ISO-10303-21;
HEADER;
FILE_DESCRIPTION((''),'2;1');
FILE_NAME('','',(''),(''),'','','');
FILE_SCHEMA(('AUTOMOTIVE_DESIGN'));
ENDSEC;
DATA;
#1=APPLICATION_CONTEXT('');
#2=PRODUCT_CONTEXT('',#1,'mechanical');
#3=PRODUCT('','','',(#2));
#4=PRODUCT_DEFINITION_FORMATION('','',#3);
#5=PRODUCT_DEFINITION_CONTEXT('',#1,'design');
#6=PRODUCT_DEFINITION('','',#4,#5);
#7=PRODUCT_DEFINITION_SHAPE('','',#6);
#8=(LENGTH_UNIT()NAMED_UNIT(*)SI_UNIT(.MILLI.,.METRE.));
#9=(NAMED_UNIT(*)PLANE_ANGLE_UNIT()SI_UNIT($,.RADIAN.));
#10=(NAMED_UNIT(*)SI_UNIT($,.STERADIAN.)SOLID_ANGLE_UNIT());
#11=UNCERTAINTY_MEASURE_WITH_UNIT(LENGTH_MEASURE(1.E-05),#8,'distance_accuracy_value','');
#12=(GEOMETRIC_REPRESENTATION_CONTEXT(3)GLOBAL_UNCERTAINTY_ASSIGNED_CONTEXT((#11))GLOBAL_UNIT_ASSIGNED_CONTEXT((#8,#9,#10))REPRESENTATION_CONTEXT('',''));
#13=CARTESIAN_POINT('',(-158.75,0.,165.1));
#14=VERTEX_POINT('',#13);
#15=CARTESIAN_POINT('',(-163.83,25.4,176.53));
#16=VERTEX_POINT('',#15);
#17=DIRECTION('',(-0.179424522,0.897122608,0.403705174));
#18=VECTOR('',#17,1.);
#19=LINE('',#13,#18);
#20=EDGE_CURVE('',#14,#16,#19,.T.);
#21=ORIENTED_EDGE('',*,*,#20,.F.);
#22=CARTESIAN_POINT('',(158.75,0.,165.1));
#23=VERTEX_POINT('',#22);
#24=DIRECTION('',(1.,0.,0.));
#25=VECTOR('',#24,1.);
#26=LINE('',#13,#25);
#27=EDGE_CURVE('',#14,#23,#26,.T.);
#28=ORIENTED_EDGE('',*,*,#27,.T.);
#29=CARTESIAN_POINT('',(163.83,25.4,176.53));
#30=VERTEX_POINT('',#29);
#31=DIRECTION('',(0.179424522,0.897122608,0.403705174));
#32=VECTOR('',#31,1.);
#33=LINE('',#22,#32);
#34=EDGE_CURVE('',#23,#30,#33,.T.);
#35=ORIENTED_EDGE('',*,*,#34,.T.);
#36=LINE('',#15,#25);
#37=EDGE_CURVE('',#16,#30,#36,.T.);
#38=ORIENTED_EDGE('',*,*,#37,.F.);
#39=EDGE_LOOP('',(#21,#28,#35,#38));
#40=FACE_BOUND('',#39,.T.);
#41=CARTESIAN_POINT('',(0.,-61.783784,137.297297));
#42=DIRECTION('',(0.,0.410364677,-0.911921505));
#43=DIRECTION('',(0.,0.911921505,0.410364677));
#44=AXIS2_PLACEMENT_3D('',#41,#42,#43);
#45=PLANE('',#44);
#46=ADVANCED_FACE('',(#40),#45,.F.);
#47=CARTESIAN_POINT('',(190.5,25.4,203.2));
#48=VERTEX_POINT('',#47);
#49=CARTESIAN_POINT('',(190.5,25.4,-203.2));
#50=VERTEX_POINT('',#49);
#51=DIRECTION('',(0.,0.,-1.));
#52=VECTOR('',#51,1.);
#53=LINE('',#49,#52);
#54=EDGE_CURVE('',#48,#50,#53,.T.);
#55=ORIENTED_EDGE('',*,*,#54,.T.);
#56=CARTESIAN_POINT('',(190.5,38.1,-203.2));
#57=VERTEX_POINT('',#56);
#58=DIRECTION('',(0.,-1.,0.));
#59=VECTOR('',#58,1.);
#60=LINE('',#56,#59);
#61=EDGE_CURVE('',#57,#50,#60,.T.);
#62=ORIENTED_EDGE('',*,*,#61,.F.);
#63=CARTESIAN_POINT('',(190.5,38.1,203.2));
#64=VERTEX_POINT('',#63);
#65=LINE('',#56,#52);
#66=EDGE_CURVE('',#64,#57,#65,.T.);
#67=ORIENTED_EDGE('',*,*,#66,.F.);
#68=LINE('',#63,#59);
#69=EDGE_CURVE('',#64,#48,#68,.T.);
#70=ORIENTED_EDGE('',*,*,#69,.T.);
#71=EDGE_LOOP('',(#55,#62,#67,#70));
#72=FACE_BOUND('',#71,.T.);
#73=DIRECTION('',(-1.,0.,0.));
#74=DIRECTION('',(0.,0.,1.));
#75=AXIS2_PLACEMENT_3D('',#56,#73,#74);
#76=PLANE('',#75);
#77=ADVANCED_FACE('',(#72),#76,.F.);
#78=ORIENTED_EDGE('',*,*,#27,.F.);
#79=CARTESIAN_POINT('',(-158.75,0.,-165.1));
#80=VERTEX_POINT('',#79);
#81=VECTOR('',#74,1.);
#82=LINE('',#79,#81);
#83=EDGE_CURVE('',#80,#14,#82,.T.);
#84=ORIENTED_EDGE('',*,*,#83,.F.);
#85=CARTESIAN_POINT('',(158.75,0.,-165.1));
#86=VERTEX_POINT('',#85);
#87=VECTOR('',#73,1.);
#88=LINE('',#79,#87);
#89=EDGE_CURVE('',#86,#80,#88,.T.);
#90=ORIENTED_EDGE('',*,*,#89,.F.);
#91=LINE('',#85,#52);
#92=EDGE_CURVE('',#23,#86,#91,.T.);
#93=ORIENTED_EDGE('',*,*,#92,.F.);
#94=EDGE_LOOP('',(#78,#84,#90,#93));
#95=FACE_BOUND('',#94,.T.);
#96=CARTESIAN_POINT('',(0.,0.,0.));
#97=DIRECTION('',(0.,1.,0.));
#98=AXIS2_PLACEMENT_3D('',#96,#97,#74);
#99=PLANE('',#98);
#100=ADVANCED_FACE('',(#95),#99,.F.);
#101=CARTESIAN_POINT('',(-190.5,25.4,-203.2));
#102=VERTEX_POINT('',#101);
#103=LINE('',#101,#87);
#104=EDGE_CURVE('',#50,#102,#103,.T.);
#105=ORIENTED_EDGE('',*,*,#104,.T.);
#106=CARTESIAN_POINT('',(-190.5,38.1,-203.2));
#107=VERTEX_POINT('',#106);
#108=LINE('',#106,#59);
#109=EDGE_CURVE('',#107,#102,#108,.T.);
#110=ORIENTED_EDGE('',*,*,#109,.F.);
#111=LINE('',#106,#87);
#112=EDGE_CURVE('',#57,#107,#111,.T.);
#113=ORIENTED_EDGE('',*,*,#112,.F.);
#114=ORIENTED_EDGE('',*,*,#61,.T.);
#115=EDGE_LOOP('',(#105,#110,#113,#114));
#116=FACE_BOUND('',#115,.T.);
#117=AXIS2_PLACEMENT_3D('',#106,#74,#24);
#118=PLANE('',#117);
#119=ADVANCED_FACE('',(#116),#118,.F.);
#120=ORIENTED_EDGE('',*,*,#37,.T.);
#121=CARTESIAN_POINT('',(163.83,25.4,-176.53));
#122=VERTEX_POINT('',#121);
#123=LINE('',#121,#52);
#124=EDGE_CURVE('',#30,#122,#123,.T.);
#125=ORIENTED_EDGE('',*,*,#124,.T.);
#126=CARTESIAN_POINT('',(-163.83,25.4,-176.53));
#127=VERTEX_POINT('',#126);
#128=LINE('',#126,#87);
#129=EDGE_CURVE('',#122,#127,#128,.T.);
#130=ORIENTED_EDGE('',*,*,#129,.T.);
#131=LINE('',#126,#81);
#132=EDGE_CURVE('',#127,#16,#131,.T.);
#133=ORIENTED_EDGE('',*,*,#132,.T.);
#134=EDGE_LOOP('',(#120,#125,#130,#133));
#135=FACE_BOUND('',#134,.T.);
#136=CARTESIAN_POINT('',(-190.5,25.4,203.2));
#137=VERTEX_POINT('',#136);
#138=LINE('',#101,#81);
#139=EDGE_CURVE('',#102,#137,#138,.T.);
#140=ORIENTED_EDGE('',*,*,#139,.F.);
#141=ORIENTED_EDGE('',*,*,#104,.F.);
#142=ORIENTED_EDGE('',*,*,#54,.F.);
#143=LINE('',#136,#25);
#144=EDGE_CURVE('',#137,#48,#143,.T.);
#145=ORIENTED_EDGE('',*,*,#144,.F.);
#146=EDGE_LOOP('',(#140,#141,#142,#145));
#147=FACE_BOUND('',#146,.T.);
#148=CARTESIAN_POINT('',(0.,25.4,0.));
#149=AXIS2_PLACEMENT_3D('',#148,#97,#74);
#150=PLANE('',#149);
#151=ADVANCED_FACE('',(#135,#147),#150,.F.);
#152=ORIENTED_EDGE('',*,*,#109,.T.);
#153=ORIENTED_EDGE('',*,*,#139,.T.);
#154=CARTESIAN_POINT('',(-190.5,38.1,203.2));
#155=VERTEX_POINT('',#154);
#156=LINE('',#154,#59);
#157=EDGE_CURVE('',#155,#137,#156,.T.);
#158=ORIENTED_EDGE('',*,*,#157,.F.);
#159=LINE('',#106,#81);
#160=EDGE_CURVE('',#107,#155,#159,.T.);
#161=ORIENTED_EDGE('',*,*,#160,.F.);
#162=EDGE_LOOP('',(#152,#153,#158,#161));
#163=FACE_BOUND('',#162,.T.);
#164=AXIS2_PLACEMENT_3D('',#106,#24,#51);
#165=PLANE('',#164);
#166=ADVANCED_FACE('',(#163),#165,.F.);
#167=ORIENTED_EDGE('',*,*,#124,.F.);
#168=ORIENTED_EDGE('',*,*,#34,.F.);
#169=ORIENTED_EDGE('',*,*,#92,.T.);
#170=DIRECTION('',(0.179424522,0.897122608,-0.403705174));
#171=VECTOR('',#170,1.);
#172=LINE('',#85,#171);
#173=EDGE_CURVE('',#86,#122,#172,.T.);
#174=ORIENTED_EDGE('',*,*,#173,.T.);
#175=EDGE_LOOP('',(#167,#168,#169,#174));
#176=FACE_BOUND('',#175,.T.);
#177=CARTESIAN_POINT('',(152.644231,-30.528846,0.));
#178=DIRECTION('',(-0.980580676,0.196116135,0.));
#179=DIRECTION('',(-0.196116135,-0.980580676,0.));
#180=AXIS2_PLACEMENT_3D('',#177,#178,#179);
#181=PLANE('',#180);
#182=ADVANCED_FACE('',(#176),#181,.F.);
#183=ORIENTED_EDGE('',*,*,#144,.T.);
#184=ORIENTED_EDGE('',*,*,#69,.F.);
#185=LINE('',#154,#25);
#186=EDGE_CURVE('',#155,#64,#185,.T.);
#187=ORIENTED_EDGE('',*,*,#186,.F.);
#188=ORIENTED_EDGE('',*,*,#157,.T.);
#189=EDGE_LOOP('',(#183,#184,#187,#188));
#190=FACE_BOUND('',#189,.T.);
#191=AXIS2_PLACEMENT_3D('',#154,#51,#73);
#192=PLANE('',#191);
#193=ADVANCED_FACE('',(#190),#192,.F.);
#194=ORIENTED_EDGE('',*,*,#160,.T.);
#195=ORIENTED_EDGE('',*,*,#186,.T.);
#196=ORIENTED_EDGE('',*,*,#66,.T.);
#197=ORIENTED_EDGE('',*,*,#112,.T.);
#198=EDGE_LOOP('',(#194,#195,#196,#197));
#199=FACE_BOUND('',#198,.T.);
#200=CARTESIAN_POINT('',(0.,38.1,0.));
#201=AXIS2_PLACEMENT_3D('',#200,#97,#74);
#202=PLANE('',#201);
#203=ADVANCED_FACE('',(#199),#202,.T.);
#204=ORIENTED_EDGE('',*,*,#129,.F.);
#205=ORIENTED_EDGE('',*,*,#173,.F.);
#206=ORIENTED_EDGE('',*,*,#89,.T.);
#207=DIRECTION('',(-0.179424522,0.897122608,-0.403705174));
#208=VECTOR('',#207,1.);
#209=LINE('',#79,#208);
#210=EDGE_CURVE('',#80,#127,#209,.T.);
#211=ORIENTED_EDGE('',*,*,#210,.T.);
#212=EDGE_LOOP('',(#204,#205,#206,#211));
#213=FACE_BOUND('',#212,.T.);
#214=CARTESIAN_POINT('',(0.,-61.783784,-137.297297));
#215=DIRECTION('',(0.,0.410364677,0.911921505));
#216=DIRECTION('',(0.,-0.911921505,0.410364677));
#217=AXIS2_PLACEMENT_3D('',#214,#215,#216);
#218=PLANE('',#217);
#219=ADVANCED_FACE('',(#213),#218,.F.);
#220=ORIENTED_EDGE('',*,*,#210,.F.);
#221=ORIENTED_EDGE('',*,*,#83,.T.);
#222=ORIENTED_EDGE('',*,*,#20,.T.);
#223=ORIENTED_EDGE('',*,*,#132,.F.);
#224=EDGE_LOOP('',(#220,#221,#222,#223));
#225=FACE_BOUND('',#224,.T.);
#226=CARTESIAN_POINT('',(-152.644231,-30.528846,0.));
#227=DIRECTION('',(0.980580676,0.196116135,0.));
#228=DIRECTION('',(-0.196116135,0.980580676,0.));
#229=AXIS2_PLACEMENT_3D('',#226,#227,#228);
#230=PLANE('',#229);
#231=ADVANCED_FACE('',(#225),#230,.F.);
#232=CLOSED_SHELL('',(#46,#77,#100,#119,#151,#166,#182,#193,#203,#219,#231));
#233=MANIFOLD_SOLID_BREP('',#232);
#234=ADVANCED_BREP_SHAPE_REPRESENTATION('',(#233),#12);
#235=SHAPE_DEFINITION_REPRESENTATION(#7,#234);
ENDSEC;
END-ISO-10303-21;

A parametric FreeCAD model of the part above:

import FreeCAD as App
import Part
import Sketcher
from FreeCAD import Vector
Q = App.Units.Quantity

doc = App.newDocument("Part")
body = doc.addObject("PartDesign::Body", "Body")

# Sketch on XZ plane
sketch1 = body.newObject("Sketcher::SketchObject", "Sketch")
sketch1.AttachmentSupport = (doc.getObject("XZ_Plane"), [""])
sketch1.MapMode = "FlatFace"
sketch1.addGeometry(Part.LineSegment(Vector(159, -165, 0), Vector(-159, -165, 0)), False)
sketch1.addGeometry(Part.LineSegment(Vector(-159, -165, 0), Vector(-159, 165, 0)), False)
sketch1.addGeometry(Part.LineSegment(Vector(-159, 165, 0), Vector(159, 165, 0)), False)
sketch1.addGeometry(Part.LineSegment(Vector(159, 165, 0), Vector(159, -165, 0)), False)
sketch1.addConstraint(Sketcher.Constraint("Coincident", 0, 2, 1, 1))
sketch1.addConstraint(Sketcher.Constraint("Coincident", 1, 2, 2, 1))
sketch1.addConstraint(Sketcher.Constraint("Coincident", 2, 2, 3, 1))
sketch1.addConstraint(Sketcher.Constraint("Coincident", 3, 2, 0, 1))
sketch1.addConstraint(Sketcher.Constraint("Horizontal", 0))
sketch1.addConstraint(Sketcher.Constraint("Vertical", 1))
sketch1.addConstraint(Sketcher.Constraint("Horizontal", 2))
sketch1.addConstraint(Sketcher.Constraint("Vertical", 3))
sketch1.addConstraint(Sketcher.Constraint("Symmetric", 0, 2, 2, 2, -1, 1))
sketch1.addConstraint(Sketcher.Constraint("DistanceY", 1, 1, 1, 2, Q("13 in")))
sketch1.addConstraint(Sketcher.Constraint("DistanceX", 0, 2, 0, 1, Q("12.5 in")))

# Sketch on XZ plane
sketch2 = body.newObject("Sketcher::SketchObject", "Sketch001")
sketch2.AttachmentSupport = (doc.getObject("XZ_Plane"), [""])
sketch2.MapMode = "FlatFace"
sketch2.AttachmentOffset = App.Placement(Vector(0, 0, -1 * 25.4), App.Rotation())
sketch2.addGeometry(Part.LineSegment(Vector(164, -177, 0), Vector(-164, -177, 0)), False)
sketch2.addGeometry(Part.LineSegment(Vector(-164, -177, 0), Vector(-164, 177, 0)), False)
sketch2.addGeometry(Part.LineSegment(Vector(-164, 177, 0), Vector(164, 177, 0)), False)
sketch2.addGeometry(Part.LineSegment(Vector(164, 177, 0), Vector(164, -177, 0)), False)
sketch2.addConstraint(Sketcher.Constraint("Coincident", 0, 2, 1, 1))
sketch2.addConstraint(Sketcher.Constraint("Coincident", 1, 2, 2, 1))
sketch2.addConstraint(Sketcher.Constraint("Coincident", 2, 2, 3, 1))
sketch2.addConstraint(Sketcher.Constraint("Coincident", 3, 2, 0, 1))
sketch2.addConstraint(Sketcher.Constraint("Horizontal", 0))
sketch2.addConstraint(Sketcher.Constraint("Vertical", 1))
sketch2.addConstraint(Sketcher.Constraint("Horizontal", 2))
sketch2.addConstraint(Sketcher.Constraint("Vertical", 3))
sketch2.addConstraint(Sketcher.Constraint("Symmetric", 0, 2, 2, 2, -1, 1))
sketch2.addConstraint(Sketcher.Constraint("DistanceX", 0, 2, 0, 1, Q("12.9 in")))
sketch2.addConstraint(Sketcher.Constraint("DistanceY", 1, 1, 1, 2, Q("13.9 in")))

additiveloft = body.newObject("PartDesign::AdditiveLoft", "AdditiveLoft")
additiveloft.Profile = sketch1
additiveloft.Sections = [sketch2]

# Sketch on XZ plane
sketch3 = body.newObject("Sketcher::SketchObject", "Sketch002")
sketch3.AttachmentSupport = (doc.getObject("XZ_Plane"), [""])
sketch3.MapMode = "FlatFace"
sketch3.AttachmentOffset = App.Placement(Vector(0, 0, -1 * 25.4), App.Rotation())
sketch3.addGeometry(Part.LineSegment(Vector(-190, -203, 0), Vector(-190, 203, 0)), False)
sketch3.addGeometry(Part.LineSegment(Vector(-190, 203, 0), Vector(190, 203, 0)), False)
sketch3.addGeometry(Part.LineSegment(Vector(190, 203, 0), Vector(190, -203, 0)), False)
sketch3.addGeometry(Part.LineSegment(Vector(190, -203, 0), Vector(-190, -203, 0)), False)
sketch3.addConstraint(Sketcher.Constraint("Coincident", 0, 2, 1, 1))
sketch3.addConstraint(Sketcher.Constraint("Coincident", 1, 2, 2, 1))
sketch3.addConstraint(Sketcher.Constraint("Coincident", 2, 2, 3, 1))
sketch3.addConstraint(Sketcher.Constraint("Coincident", 3, 2, 0, 1))
sketch3.addConstraint(Sketcher.Constraint("Vertical", 0))
sketch3.addConstraint(Sketcher.Constraint("Horizontal", 1))
sketch3.addConstraint(Sketcher.Constraint("Vertical", 2))
sketch3.addConstraint(Sketcher.Constraint("Horizontal", 3))
sketch3.addConstraint(Sketcher.Constraint("Symmetric", 0, 2, 2, 2, -1, 1))
sketch3.addConstraint(Sketcher.Constraint("DistanceX", 1, 1, 1, 2, Q("15 in")))
sketch3.addConstraint(Sketcher.Constraint("DistanceY", 0, 1, 0, 2, Q("16 in")))
pad1 = body.newObject("PartDesign::Pad", "Pad")
pad1.Profile = sketch3
pad1.Length = Q("0.5 in")
pad1.Reversed = True

doc.recompute()
